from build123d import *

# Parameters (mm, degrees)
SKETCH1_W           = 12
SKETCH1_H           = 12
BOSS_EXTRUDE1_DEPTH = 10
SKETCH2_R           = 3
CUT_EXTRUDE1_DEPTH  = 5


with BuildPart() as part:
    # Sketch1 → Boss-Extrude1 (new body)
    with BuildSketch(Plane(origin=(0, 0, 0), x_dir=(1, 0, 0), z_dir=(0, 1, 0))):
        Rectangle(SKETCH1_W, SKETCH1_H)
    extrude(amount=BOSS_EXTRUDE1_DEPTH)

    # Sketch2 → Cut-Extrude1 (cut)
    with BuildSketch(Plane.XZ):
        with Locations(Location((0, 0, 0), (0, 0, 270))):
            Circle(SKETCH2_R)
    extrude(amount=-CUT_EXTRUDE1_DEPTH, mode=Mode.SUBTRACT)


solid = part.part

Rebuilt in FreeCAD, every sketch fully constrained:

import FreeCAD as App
import Part
import Sketcher

V = App.Vector

doc = App.newDocument("Part")
body = doc.addObject("PartDesign::Body", "Body")

# Sketch on XZ plane
sketch1 = body.newObject("Sketcher::SketchObject", "Sketch")
sketch1.AttachmentSupport = (doc.getObject("XZ_Plane"), [""])
sketch1.MapMode = "FlatFace"
sketch1.addGeometry([
    Part.LineSegment(V(-6, -6, 0), V(-6, 6, 0)),
    Part.LineSegment(V(-6, 6, 0), V(6, 6, 0)),
    Part.LineSegment(V(6, 6, 0), V(6, -6, 0)),
    Part.LineSegment(V(6, -6, 0), V(-6, -6, 0)),
], False)
sketch1.addConstraint([
    Sketcher.Constraint("Coincident", 0, 2, 1, 1),
    Sketcher.Constraint("Coincident", 1, 2, 2, 1),
    Sketcher.Constraint("Coincident", 2, 2, 3, 1),
    Sketcher.Constraint("Coincident", 3, 2, 0, 1),
    Sketcher.Constraint("Vertical", 0),
    Sketcher.Constraint("Horizontal", 1),
    Sketcher.Constraint("Vertical", 2),
    Sketcher.Constraint("Horizontal", 3),
    Sketcher.Constraint("Symmetric", 0, 2, 2, 2, -1, 1),
    Sketcher.Constraint("Equal", 3, 0),
    Sketcher.Constraint("DistanceX", 1, 1, 1, 2, 12.0),
])
pad1 = body.newObject("PartDesign::Pad", "Pad")
pad1.Profile = sketch1
pad1.Length = 10
pad1.Reversed = True

# Sketch on XZ plane
sketch2 = body.newObject("Sketcher::SketchObject", "Sketch001")
sketch2.AttachmentSupport = (doc.getObject("XZ_Plane"), [""])
sketch2.MapMode = "FlatFace"
sketch2.addGeometry(Part.Circle(V(0, 0, 0), V(0, 0, 1), 3), False)
sketch2.addConstraint([
    Sketcher.Constraint("Coincident", 0, 3, -1, 1),
    Sketcher.Constraint("Diameter", 0, 6.0),
])
pocket1 = body.newObject("PartDesign::Pocket", "Pocket")
pocket1.Profile = sketch2
pocket1.Length = 5

doc.recompute()
